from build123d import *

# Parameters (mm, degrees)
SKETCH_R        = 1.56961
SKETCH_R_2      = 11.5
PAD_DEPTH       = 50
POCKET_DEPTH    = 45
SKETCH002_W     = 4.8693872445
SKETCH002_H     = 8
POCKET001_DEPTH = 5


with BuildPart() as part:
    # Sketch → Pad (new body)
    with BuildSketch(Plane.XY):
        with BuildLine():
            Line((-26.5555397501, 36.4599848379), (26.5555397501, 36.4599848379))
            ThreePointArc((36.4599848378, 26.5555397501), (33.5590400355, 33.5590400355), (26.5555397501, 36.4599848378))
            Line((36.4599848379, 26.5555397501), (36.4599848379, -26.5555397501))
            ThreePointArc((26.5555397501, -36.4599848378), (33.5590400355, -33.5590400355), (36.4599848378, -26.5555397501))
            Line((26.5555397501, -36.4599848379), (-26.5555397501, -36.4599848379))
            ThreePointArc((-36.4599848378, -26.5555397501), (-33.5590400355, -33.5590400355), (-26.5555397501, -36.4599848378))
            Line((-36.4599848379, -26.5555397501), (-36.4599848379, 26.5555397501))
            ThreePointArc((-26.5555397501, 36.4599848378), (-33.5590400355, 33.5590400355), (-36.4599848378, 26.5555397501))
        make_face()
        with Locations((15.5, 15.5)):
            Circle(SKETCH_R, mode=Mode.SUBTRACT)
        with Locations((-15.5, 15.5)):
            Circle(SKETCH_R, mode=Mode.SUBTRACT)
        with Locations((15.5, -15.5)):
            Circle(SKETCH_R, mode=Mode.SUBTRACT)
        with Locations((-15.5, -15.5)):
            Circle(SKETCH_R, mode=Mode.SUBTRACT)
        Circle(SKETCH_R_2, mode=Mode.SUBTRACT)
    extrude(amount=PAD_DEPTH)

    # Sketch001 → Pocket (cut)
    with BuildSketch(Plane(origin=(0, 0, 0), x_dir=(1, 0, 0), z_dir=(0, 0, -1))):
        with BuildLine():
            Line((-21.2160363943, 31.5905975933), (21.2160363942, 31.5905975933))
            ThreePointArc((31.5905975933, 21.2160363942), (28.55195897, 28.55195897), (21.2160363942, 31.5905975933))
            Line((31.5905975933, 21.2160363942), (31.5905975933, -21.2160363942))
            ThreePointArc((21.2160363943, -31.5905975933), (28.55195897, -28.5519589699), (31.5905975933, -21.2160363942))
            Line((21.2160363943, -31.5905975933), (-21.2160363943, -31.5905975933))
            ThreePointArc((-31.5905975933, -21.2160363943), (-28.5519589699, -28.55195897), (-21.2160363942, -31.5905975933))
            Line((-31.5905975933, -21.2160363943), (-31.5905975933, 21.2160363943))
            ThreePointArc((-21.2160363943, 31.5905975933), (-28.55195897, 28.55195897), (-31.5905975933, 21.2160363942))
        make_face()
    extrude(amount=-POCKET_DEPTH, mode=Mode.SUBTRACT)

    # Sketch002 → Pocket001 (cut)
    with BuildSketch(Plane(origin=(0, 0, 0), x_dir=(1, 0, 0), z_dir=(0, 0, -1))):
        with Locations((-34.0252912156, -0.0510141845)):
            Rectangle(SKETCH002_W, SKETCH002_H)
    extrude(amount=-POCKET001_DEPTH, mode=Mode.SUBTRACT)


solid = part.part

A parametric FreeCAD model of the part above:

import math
import FreeCAD as App
import Part
import Sketcher
from FreeCAD import Vector

doc = App.newDocument("Part")
body = doc.addObject("PartDesign::Body", "Body")

# Sketch on XY plane
sketch1 = body.newObject("Sketcher::SketchObject", "Sketch")
sketch1.AttachmentSupport = (doc.getObject("XY_Plane"), [""])
sketch1.MapMode = "FlatFace"
sketch1.addGeometry([
    Part.LineSegment(Vector(26.6, 36.5, 0), Vector(-26.6, 36.5, 0)),  # 0
    Part.ArcOfCircle(Part.Circle(Vector(-26.6, 26.6, 0), Vector(0, 0, 1), 9.9), math.radians(90), math.radians(180)),  # 1
    Part.LineSegment(Vector(-36.5, 26.6, 0), Vector(-36.5, -26.6, 0)),  # 2
    Part.ArcOfCircle(Part.Circle(Vector(-26.6, -26.6, 0), Vector(0, 0, 1), 9.9), math.radians(180), math.radians(270)),  # 3
    Part.LineSegment(Vector(-26.6, -36.5, 0), Vector(26.6, -36.5, 0)),  # 4
    Part.ArcOfCircle(Part.Circle(Vector(26.6, -26.6, 0), Vector(0, 0, 1), 9.9), math.radians(-90), math.radians(0)),  # 5
    Part.LineSegment(Vector(36.5, -26.6, 0), Vector(36.5, 26.6, 0)),  # 6
    Part.ArcOfCircle(Part.Circle(Vector(26.6, 26.6, 0), Vector(0, 0, 1), 9.9), math.radians(0), math.radians(90)),  # 7
    Part.Circle(Vector(15.5, -15.5, 0), Vector(0, 0, 1), 1.6),  # 8
    Part.Circle(Vector(-15.5, -15.5, 0), Vector(0, 0, 1), 1.6),  # 9
    Part.Circle(Vector(0, 0, 0), Vector(0, 0, 1), 11.5),  # 10
    Part.Circle(Vector(15.5, 15.5, 0), Vector(0, 0, 1), 1.6),  # 11
    Part.Circle(Vector(-15.5, 15.5, 0), Vector(0, 0, 1), 1.6),  # 12
], False)
sketch1.addConstraint([
    Sketcher.Constraint("Tangent", 0, 2, 1, 1),
    Sketcher.Constraint("Tangent", 1, 2, 2, 1),
    Sketcher.Constraint("Tangent", 2, 2, 3, 1),
    Sketcher.Constraint("Tangent", 3, 2, 4, 1),
    Sketcher.Constraint("Tangent", 4, 2, 5, 1),
    Sketcher.Constraint("Tangent", 5, 2, 6, 1),
    Sketcher.Constraint("Tangent", 6, 2, 7, 1),
    Sketcher.Constraint("Tangent", 7, 2, 0, 1),
    Sketcher.Constraint("Horizontal", 0),
    Sketcher.Constraint("Vertical", 2),
    Sketcher.Constraint("Horizontal", 4),
    Sketcher.Constraint("Vertical", 6),
    Sketcher.Constraint("Coincident", 10, 3, -1, 1),
    Sketcher.Constraint("Equal", 1, 3),
    Sketcher.Constraint("Equal", 3, 5),
    Sketcher.Constraint("Equal", 5, 7),
    Sketcher.Constraint("Equal", 8, 9),
    Sketcher.Constraint("Equal", 9, 11),
    Sketcher.Constraint("Equal", 11, 12),
    Sketcher.Constraint("Symmetric", 1, 3, 5, 3, -1, 1),
    Sketcher.Constraint("Symmetric", 9, 3, 11, 3, -1, 1),
    Sketcher.Constraint("Symmetric", 8, 3, 12, 3, -1, 1),
    Sketcher.Constraint("Symmetric", 8, 3, 9, 3, -2),
    Sketcher.Constraint("Equal", 4, 2),
    Sketcher.Constraint("Diameter", 10, 23.0),
    Sketcher.Constraint("DistanceX", 9, 3, 8, 3, 31.0),
    Sketcher.Constraint("DistanceY", 8, 3, 11, 3, 31.0),
    Sketcher.Constraint("Diameter", 8, 3.13922),
    Sketcher.Constraint("Radius", 1, 9.904445),
    Sketcher.Constraint("DistanceX", 0, 2, 0, 1, 53.11108),
])
pad1 = body.newObject("PartDesign::Pad", "Pad")
pad1.Profile = sketch1
pad1.Length = 50

# Sketch on XY plane
sketch2 = body.newObject("Sketcher::SketchObject", "Sketch001")
sketch2.AttachmentSupport = (doc.getObject("XY_Plane"), [""])
sketch2.MapMode = "FlatFace"
sketch2.addGeometry([
    Part.LineSegment(Vector(21, -32, 0), Vector(-21, -32, 0)),  # 0
    Part.ArcOfCircle(Part.Circle(Vector(-21, -21, 0), Vector(0, 0, 1), 10), math.radians(180), math.radians(270)),  # 1
    Part.LineSegment(Vector(-32, -21, 0), Vector(-32, 21, 0)),  # 2
    Part.ArcOfCircle(Part.Circle(Vector(-21, 21, 0), Vector(0, 0, 1), 10), math.radians(90), math.radians(180)),  # 3
    Part.LineSegment(Vector(-21, 32, 0), Vector(21, 32, 0)),  # 4
    Part.ArcOfCircle(Part.Circle(Vector(21, 21, 0), Vector(0, 0, 1), 10), math.radians(0), math.radians(90)),  # 5
    Part.LineSegment(Vector(32, 21, 0), Vector(32, -21, 0)),  # 6
    Part.ArcOfCircle(Part.Circle(Vector(21, -21, 0), Vector(0, 0, 1), 10), math.radians(-90), math.radians(0)),  # 7
], False)
sketch2.addConstraint([
    Sketcher.Constraint("Tangent", 0, 2, 1, 2),
    Sketcher.Constraint("Tangent", 1, 1, 2, 1),
    Sketcher.Constraint("Tangent", 2, 2, 3, 2),
    Sketcher.Constraint("Tangent", 3, 1, 4, 1),
    Sketcher.Constraint("Tangent", 4, 2, 5, 2),
    Sketcher.Constraint("Tangent", 5, 1, 6, 1),
    Sketcher.Constraint("Tangent", 6, 2, 7, 2),
    Sketcher.Constraint("Tangent", 7, 1, 0, 1),
    Sketcher.Constraint("Horizontal", 0),
    Sketcher.Constraint("Vertical", 2),
    Sketcher.Constraint("Horizontal", 4),
    Sketcher.Constraint("Vertical", 6),
    Sketcher.Constraint("Equal", 1, 3),
    Sketcher.Constraint("Equal", 3, 5),
    Sketcher.Constraint("Equal", 5, 7),
    Sketcher.Constraint("Symmetric", 1, 3, 5, 3, -1, 1),
    Sketcher.Constraint("Equal", 4, 2),
    Sketcher.Constraint("Radius", 1, 10.374561),
    Sketcher.Constraint("DistanceX", 0, 2, 0, 1, 42.432073),
])
pocket1 = body.newObject("PartDesign::Pocket", "Pocket")
pocket1.Profile = sketch2
pocket1.Length = 45
pocket1.Reversed = True

# Sketch on XY plane
sketch3 = body.newObject("Sketcher::SketchObject", "Sketch002")
sketch3.AttachmentSupport = (doc.getObject("XY_Plane"), [""])
sketch3.MapMode = "FlatFace"
sketch3.addGeometry([
    Part.LineSegment(Vector(-36.5, -3.9, 0), Vector(-36.5, 4.1, 0)),
    Part.LineSegment(Vector(-36.5, 4.1, 0), Vector(-31.6, 4.1, 0)),
    Part.LineSegment(Vector(-31.6, 4.1, 0), Vector(-31.6, -3.9, 0)),
    Part.LineSegment(Vector(-31.6, -3.9, 0), Vector(-36.5, -3.9, 0)),
], False)
sketch3.addConstraint([
    Sketcher.Constraint("Coincident", 0, 2, 1, 1),
    Sketcher.Constraint("Coincident", 1, 2, 2, 1),
    Sketcher.Constraint("Coincident", 2, 2, 3, 1),
    Sketcher.Constraint("Coincident", 3, 2, 0, 1),
    Sketcher.Constraint("Vertical", 0),
    Sketcher.Constraint("Horizontal", 1),
    Sketcher.Constraint("Vertical", 2),
    Sketcher.Constraint("Horizontal", 3),
    Sketcher.Constraint("DistanceY", 0, 1, 0, 2, 8.0),
    Sketcher.Constraint("DistanceX", 1, 1, 1, 2, 4.869387),
    Sketcher.Constraint("DistanceX", 0, 2, -1, 1, 36.459985),
    Sketcher.Constraint("DistanceY", -1, 1, 0, 2, 4.051014),
])
pocket2 = body.newObject("PartDesign::Pocket", "Pocket001")
pocket2.Profile = sketch3
pocket2.Length = 5
pocket2.Reversed = True

doc.recompute()
